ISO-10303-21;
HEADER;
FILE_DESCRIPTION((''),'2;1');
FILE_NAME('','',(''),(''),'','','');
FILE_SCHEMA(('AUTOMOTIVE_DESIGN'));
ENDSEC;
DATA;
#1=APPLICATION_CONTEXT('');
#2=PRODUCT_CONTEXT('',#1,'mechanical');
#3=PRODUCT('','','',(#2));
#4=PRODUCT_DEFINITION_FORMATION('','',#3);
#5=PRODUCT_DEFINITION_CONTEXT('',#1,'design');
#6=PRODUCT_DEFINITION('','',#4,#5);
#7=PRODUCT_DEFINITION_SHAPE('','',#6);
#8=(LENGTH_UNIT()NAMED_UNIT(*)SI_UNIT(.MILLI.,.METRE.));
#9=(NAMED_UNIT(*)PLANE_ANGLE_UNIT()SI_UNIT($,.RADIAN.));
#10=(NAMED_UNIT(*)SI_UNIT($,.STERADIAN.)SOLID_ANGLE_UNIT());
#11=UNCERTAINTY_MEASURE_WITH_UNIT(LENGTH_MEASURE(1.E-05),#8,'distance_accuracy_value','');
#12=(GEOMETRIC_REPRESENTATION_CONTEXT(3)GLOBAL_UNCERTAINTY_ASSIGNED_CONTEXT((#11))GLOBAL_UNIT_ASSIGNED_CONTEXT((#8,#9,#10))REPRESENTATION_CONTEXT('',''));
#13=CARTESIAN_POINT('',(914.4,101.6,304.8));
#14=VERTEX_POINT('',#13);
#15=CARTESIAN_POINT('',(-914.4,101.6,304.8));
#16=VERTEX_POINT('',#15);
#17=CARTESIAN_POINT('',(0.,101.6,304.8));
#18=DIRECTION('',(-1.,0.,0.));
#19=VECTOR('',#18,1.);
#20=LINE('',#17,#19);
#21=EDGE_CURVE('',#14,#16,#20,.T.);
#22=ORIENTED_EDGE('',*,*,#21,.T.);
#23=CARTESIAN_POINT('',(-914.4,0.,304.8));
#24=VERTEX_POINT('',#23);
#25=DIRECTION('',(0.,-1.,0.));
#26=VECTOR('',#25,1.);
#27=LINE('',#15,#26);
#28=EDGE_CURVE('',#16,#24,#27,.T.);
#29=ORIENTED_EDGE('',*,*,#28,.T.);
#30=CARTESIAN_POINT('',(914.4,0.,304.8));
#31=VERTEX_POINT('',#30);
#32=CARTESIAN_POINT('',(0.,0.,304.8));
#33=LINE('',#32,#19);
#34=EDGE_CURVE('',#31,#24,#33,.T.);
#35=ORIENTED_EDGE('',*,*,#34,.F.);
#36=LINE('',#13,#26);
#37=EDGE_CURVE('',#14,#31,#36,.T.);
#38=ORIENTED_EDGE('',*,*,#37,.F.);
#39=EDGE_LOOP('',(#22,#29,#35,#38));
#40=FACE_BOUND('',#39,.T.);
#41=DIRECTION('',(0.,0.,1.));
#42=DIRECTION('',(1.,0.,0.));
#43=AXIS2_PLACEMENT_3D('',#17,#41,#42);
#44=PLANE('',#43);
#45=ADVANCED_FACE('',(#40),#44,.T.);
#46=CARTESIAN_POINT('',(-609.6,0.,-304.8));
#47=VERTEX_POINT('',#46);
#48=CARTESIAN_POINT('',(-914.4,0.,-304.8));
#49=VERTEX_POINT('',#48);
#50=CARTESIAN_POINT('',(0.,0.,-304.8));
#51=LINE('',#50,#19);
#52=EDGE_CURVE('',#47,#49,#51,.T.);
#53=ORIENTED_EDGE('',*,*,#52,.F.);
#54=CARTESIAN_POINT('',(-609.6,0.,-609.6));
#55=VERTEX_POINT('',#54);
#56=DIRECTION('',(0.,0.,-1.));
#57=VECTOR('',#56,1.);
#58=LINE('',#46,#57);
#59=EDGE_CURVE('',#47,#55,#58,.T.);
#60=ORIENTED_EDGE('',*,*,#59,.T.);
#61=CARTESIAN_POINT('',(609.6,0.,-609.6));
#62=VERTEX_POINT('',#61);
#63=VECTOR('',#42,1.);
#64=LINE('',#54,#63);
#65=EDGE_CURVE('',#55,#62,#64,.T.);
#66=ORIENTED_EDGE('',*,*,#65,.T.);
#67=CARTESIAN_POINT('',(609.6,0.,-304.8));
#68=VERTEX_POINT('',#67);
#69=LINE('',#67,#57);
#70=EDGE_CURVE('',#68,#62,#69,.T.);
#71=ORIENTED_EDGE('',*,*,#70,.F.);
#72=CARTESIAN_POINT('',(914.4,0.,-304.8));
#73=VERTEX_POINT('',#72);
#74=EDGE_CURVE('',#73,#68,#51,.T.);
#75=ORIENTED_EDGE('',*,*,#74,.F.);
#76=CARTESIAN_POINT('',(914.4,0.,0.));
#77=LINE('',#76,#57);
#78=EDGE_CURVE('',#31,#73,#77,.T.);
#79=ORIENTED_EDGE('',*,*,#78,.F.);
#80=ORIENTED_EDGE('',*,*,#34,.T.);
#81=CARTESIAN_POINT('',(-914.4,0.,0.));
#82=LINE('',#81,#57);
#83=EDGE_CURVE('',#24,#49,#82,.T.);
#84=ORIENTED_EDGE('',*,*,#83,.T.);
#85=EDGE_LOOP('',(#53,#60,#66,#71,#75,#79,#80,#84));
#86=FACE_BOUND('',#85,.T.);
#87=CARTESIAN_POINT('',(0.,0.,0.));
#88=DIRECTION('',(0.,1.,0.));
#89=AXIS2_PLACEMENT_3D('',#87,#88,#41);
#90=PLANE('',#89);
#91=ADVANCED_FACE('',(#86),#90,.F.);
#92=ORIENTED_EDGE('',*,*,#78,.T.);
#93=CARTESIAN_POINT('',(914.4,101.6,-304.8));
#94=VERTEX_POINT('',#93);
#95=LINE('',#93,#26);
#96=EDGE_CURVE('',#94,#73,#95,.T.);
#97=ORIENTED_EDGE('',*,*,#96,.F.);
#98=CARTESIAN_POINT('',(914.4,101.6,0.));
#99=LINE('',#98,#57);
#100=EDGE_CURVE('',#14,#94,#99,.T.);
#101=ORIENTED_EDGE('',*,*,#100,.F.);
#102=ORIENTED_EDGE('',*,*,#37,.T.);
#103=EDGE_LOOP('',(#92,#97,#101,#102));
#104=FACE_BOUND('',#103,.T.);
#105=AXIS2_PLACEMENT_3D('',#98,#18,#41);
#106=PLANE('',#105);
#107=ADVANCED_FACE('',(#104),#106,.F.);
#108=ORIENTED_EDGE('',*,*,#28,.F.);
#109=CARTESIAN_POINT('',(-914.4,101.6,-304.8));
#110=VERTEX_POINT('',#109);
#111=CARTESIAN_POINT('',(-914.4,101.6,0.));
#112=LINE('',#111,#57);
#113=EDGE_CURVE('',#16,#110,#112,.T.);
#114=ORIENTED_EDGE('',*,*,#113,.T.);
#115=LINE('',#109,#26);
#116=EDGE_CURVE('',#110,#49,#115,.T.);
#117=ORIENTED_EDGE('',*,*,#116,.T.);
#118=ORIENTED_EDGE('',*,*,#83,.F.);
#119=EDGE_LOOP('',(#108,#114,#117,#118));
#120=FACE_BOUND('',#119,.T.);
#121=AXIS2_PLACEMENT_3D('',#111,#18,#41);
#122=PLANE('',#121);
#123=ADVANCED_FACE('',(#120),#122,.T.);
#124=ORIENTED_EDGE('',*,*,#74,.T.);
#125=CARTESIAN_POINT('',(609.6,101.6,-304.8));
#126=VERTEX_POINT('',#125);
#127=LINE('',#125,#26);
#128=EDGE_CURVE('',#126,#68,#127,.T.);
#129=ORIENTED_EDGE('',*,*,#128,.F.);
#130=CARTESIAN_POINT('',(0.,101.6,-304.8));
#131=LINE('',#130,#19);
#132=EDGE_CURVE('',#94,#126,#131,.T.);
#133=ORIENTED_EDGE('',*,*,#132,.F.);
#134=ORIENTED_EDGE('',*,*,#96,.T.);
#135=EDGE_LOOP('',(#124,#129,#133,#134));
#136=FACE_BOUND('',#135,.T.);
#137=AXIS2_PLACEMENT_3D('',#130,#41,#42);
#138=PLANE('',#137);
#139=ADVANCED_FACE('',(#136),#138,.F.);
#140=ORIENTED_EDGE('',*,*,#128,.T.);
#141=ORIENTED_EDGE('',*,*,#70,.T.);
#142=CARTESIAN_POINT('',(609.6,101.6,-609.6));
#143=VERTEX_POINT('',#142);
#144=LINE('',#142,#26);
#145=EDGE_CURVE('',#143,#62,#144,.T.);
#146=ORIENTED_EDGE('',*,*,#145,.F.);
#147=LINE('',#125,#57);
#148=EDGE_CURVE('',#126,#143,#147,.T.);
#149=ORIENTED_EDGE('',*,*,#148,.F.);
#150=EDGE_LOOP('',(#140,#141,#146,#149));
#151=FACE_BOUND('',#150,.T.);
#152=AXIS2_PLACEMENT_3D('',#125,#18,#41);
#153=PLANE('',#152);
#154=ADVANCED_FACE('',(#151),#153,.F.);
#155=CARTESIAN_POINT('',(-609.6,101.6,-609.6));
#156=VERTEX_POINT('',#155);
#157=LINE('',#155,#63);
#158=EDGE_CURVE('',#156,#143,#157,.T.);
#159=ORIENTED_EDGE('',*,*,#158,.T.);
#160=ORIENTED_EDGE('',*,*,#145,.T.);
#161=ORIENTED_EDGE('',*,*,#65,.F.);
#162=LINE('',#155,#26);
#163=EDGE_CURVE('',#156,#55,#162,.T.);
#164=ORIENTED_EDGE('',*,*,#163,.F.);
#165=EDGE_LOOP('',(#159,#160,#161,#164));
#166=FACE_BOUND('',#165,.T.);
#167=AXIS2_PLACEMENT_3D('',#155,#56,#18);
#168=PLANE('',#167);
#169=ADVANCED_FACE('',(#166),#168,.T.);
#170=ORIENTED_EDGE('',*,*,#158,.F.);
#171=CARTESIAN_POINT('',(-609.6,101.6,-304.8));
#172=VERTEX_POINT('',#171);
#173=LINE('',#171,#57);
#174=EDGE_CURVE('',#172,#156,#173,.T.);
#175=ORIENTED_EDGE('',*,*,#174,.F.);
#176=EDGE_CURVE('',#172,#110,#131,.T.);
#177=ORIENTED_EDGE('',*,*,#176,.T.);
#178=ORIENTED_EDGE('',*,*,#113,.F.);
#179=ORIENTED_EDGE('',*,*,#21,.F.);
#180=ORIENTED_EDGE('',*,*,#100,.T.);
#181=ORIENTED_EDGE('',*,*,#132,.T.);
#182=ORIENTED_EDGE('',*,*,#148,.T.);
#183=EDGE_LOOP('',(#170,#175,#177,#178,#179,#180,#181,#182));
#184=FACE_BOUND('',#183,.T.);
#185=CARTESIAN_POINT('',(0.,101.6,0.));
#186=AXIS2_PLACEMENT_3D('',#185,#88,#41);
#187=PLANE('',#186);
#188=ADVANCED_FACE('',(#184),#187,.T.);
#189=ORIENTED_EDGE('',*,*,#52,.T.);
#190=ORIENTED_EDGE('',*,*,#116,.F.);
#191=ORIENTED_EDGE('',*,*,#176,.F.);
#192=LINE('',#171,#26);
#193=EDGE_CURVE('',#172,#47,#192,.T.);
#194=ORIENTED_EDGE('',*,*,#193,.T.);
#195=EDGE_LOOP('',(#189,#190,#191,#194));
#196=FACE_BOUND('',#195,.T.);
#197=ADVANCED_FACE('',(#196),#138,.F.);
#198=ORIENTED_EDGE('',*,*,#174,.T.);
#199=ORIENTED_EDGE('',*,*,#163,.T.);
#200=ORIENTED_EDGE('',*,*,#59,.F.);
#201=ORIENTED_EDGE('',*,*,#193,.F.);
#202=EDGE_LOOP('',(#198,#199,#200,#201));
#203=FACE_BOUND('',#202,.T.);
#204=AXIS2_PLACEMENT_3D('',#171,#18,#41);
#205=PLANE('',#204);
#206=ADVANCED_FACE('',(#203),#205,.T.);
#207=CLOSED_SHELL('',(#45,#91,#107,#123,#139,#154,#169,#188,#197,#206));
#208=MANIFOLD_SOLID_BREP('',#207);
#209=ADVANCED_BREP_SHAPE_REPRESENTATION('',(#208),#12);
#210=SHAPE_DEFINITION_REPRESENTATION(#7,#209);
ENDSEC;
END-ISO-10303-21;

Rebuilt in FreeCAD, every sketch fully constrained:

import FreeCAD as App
import Part
import Sketcher

V = App.Vector
Q = App.Units.Quantity

doc = App.newDocument("Part")
body = doc.addObject("PartDesign::Body", "Body")

sketch1 = body.newObject("Sketcher::SketchObject", "Sketch")
sketch1.AttachmentSupport = (doc.getObject("XZ_Plane"), [""])
sketch1.MapMode = "FlatFace"
sketch1.addGeometry(Part.LineSegment(V(-914, -305, 0), V(-914, 305, 0)), False)
sketch1.addGeometry(Part.LineSegment(V(-914, 305, 0), V(914, 305, 0)), False)
sketch1.addGeometry(Part.LineSegment(V(914, 305, 0), V(914, -305, 0)), False)
sketch1.addGeometry(Part.LineSegment(V(914, -305, 0), V(610, -305, 0)), False)
sketch1.addGeometry(Part.LineSegment(V(610, -305, 0), V(610, -610, 0)), False)
sketch1.addGeometry(Part.LineSegment(V(610, -610, 0), V(-610, -610, 0)), False)
sketch1.addGeometry(Part.LineSegment(V(-610, -610, 0), V(-610, -305, 0)), False)
sketch1.addGeometry(Part.LineSegment(V(-610, -305, 0), V(-914, -305, 0)), False)
sketch1.addConstraint(Sketcher.Constraint("Coincident", 0, 2, 1, 1))
sketch1.addConstraint(Sketcher.Constraint("Coincident", 1, 2, 2, 1))
sketch1.addConstraint(Sketcher.Constraint("Coincident", 2, 2, 3, 1))
sketch1.addConstraint(Sketcher.Constraint("Coincident", 3, 2, 4, 1))
sketch1.addConstraint(Sketcher.Constraint("Coincident", 4, 2, 5, 1))
sketch1.addConstraint(Sketcher.Constraint("Coincident", 5, 2, 6, 1))
sketch1.addConstraint(Sketcher.Constraint("Coincident", 6, 2, 7, 1))
sketch1.addConstraint(Sketcher.Constraint("Coincident", 7, 2, 0, 1))
sketch1.addConstraint(Sketcher.Constraint("Vertical", 0))
sketch1.addConstraint(Sketcher.Constraint("Horizontal", 1))
sketch1.addConstraint(Sketcher.Constraint("Vertical", 2))
sketch1.addConstraint(Sketcher.Constraint("Horizontal", 3))
sketch1.addConstraint(Sketcher.Constraint("Vertical", 4))
sketch1.addConstraint(Sketcher.Constraint("Horizontal", 5))
sketch1.addConstraint(Sketcher.Constraint("Vertical", 6))
sketch1.addConstraint(Sketcher.Constraint("Horizontal", 7))
sketch1.addConstraint(Sketcher.Constraint("Symmetric", 0, 2, 2, 2, -1, 1))
sketch1.addConstraint(Sketcher.Constraint("Symmetric", 3, 2, 6, 2, -2))
sketch1.addConstraint(Sketcher.Constraint("Equal", 7, 4))
sketch1.addConstraint(Sketcher.Constraint("DistanceX", 1, 1, 1, 2, Q("72 in")))
sketch1.addConstraint(Sketcher.Constraint("DistanceX", 3, 2, 3, 1, Q("12 in")))
sketch1.addConstraint(Sketcher.Constraint("DistanceY", 0, 1, 0, 2, Q("24 in")))
pad1 = body.newObject("PartDesign::Pad", "Pad")
pad1.Profile = sketch1
pad1.Length = Q("4 in")
pad1.Reversed = True

doc.recompute()
